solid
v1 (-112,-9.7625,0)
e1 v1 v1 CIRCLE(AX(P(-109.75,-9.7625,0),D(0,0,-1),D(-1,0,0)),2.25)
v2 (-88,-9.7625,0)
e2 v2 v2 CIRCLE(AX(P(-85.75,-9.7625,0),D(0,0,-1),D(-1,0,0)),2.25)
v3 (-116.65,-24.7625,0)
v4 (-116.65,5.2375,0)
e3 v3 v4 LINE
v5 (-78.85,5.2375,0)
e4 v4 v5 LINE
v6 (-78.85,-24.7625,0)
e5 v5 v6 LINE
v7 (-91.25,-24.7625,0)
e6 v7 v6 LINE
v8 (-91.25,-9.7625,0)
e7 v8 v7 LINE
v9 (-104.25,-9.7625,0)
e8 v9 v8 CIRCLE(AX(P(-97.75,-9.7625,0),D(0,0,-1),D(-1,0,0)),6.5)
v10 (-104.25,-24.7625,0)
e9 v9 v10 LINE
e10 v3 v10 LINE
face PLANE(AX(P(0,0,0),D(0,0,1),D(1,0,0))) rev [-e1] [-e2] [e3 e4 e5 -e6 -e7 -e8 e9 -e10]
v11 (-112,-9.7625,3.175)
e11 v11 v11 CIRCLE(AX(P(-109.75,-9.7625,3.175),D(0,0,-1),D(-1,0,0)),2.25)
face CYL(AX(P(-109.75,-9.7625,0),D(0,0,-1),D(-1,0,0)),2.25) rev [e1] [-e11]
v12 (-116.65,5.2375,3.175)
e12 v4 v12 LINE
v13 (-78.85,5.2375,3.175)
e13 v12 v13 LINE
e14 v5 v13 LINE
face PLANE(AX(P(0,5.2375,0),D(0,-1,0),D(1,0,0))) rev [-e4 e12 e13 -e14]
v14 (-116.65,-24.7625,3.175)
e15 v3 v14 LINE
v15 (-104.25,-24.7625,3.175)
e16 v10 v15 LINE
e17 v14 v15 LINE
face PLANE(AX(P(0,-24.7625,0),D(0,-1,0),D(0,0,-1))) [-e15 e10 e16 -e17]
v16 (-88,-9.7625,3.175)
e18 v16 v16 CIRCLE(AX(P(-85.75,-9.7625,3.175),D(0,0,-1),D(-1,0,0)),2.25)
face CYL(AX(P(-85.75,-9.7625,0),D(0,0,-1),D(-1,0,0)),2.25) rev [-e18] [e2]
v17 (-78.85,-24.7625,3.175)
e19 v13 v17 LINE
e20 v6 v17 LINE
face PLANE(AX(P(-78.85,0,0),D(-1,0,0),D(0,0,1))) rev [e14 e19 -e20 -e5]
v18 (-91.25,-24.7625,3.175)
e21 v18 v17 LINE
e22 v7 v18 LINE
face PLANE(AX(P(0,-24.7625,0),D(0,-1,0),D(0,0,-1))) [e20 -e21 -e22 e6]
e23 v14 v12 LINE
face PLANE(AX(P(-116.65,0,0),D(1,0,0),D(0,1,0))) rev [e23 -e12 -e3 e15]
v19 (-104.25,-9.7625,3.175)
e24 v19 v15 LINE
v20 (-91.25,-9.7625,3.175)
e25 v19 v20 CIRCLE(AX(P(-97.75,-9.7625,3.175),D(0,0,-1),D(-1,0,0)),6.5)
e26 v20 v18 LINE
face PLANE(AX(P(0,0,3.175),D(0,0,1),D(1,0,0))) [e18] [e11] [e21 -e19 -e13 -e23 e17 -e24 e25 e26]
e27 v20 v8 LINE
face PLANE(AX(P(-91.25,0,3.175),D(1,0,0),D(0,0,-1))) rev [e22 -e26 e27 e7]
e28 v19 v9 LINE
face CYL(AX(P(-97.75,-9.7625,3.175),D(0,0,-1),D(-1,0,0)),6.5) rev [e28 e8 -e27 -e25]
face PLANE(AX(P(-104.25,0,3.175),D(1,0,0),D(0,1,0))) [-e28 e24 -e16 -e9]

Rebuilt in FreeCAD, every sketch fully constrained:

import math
import FreeCAD as App
import Part
import Sketcher


def add_polygon(sketch, points):
    """Adds a closed chain of lines whose ends are joined by coincident constraints."""
    first, n = sketch.GeometryCount, len(points)
    for a, b in zip(points, points[1:] + points[:1]):
        sketch.addGeometry(Part.LineSegment(App.Vector(*a, 0), App.Vector(*b, 0)), False)
    for i in range(n):
        sketch.addConstraint(Sketcher.Constraint("Coincident", first + i, 2, first + (i + 1) % n, 1))

doc = App.newDocument("Part")
body = doc.addObject("PartDesign::Body", "Body")

sketch1 = body.newObject("Sketcher::SketchObject", "Sketch")
sketch1.AttachmentSupport = (doc.getObject("XY_Plane"), [""])
sketch1.MapMode = "FlatFace"
add_polygon(sketch1, [(-150, 38), (-150, -38), (150, -38), (150, 38)])
sketch1.addConstraint(Sketcher.Constraint("Vertical", 0))
sketch1.addConstraint(Sketcher.Constraint("Horizontal", 1))
sketch1.addConstraint(Sketcher.Constraint("Vertical", 2))
sketch1.addConstraint(Sketcher.Constraint("Horizontal", 3))
sketch1.addConstraint(Sketcher.Constraint("Symmetric", 0, 2, 2, 2, -1, 1))
sketch1.addConstraint(Sketcher.Constraint("DistanceX", 1, 1, 1, 2, 299.7))
sketch1.addConstraint(Sketcher.Constraint("DistanceY", 0, 2, 0, 1, 76.075))
pad1 = body.newObject("PartDesign::Pad", "Pad")
pad1.Profile = sketch1
pad1.Length = 3.175

sketch2 = body.newObject("Sketcher::SketchObject", "Sketch001")
sketch2.AttachmentSupport = (doc.getObject("XY_Plane"), [""])
sketch2.MapMode = "FlatFace"
sketch2.AttachmentOffset = App.Placement(App.Vector(0, 0, 3.175), App.Rotation())
sketch2.addGeometry(Part.LineSegment(App.Vector(123.7, 18.5, 0), App.Vector(121.7, 18.5, 0)), False)
sketch2.addGeometry(Part.ArcOfCircle(Part.Circle(App.Vector(121.7, 13.5, 0), App.Vector(0, 0, 1), 5), math.radians(90), math.radians(180)), False)
sketch2.addGeometry(Part.LineSegment(App.Vector(116.7, 13.5, 0), App.Vector(116.7, -38, 0)), False)
sketch2.addGeometry(Part.LineSegment(App.Vector(116.7, -38, 0), App.Vector(128.7, -38, 0)), False)
sketch2.addGeometry(Part.LineSegment(App.Vector(128.7, -38, 0), App.Vector(128.7, 13.5, 0)), False)
sketch2.addGeometry(Part.ArcOfCircle(Part.Circle(App.Vector(123.7, 13.5, 0), App.Vector(0, 0, 1), 5), math.radians(0), math.radians(90)), False)
sketch2.addConstraint(Sketcher.Constraint("Tangent", 0, 2, 1, 1))
sketch2.addConstraint(Sketcher.Constraint("Tangent", 1, 2, 2, 1))
sketch2.addConstraint(Sketcher.Constraint("Coincident", 2, 2, 3, 1))
sketch2.addConstraint(Sketcher.Constraint("Coincident", 3, 2, 4, 1))
sketch2.addConstraint(Sketcher.Constraint("Tangent", 4, 2, 5, 1))
sketch2.addConstraint(Sketcher.Constraint("Tangent", 5, 2, 0, 1))
sketch2.addConstraint(Sketcher.Constraint("Horizontal", 0))
sketch2.addConstraint(Sketcher.Constraint("Vertical", 2))
sketch2.addConstraint(Sketcher.Constraint("Horizontal", 3))
sketch2.addConstraint(Sketcher.Constraint("Vertical", 4))
sketch2.addConstraint(Sketcher.Constraint("Equal", 1, 5))
sketch2.addConstraint(Sketcher.Constraint("Radius", 1, 5.0))
sketch2.addConstraint(Sketcher.Constraint("DistanceX", 0, 2, 0, 1, 2.0))
sketch2.addConstraint(Sketcher.Constraint("DistanceY", 2, 2, 2, 1, 51.55))
sketch2.addConstraint(Sketcher.Constraint("DistanceX", -1, 1, 1, 3, 121.65))
sketch2.addConstraint(Sketcher.Constraint("DistanceY", -1, 1, 1, 3, 13.5125))
pocket1 = body.newObject("PartDesign::Pocket", "Pocket")
pocket1.Profile = sketch2
pocket1.Type = "ThroughAll"
doc.recompute()

mirrored = body.newObject("PartDesign::Mirrored", "Mirrored")
mirrored.Originals = [pocket1]
mirrored.MirrorPlane = (doc.getObject("YZ_Plane"), [""])
body.Tip = mirrored

sketch3 = body.newObject("Sketcher::SketchObject", "Sketch002")
sketch3.AttachmentSupport = (doc.getObject("XY_Plane"), [""])
sketch3.MapMode = "FlatFace"
sketch3.addGeometry(Part.ArcOfCircle(Part.Circle(App.Vector(98, -10, 0), App.Vector(0, 0, 1), 6), math.radians(0), math.radians(180)), False)
sketch3.addGeometry(Part.LineSegment(App.Vector(104, -10, 0), App.Vector(104, -38, 0)), False)
sketch3.addGeometry(Part.LineSegment(App.Vector(104, -38, 0), App.Vector(91, -38, 0)), False)
sketch3.addGeometry(Part.LineSegment(App.Vector(91, -38, 0), App.Vector(91, -10, 0)), False)
sketch3.addGeometry(Part.ArcOfCircle(Part.Circle(App.Vector(-98, -10, 0), App.Vector(0, 0, 1), 6), math.radians(0), math.radians(180)), False)
sketch3.addGeometry(Part.LineSegment(App.Vector(-91, -10, 0), App.Vector(-91, -38, 0)), False)
sketch3.addGeometry(Part.LineSegment(App.Vector(-91, -38, 0), App.Vector(-104, -38, 0)), False)
sketch3.addGeometry(Part.LineSegment(App.Vector(-104, -38, 0), App.Vector(-104, -10, 0)), False)
sketch3.addConstraint(Sketcher.Constraint("Tangent", 0, 1, 1, 1))
sketch3.addConstraint(Sketcher.Constraint("Coincident", 1, 2, 2, 1))
sketch3.addConstraint(Sketcher.Constraint("Coincident", 2, 2, 3, 1))
sketch3.addConstraint(Sketcher.Constraint("Tangent", 3, 2, 0, 2))
sketch3.addConstraint(Sketcher.Constraint("Tangent", 4, 1, 5, 1))
sketch3.addConstraint(Sketcher.Constraint("Coincident", 5, 2, 6, 1))
sketch3.addConstraint(Sketcher.Constraint("Coincident", 6, 2, 7, 1))
sketch3.addConstraint(Sketcher.Constraint("Tangent", 7, 2, 4, 2))
sketch3.addConstraint(Sketcher.Constraint("Vertical", 1))
sketch3.addConstraint(Sketcher.Constraint("Horizontal", 2))
sketch3.addConstraint(Sketcher.Constraint("Vertical", 3))
sketch3.addConstraint(Sketcher.Constraint("Vertical", 5))
sketch3.addConstraint(Sketcher.Constraint("Horizontal", 6))
sketch3.addConstraint(Sketcher.Constraint("Vertical", 7))
sketch3.addConstraint(Sketcher.Constraint("Equal", 0, 4))
sketch3.addConstraint(Sketcher.Constraint("Symmetric", 0, 3, 4, 3, -2))
sketch3.addConstraint(Sketcher.Constraint("Horizontal", 2, 2, 5, 2))
sketch3.addConstraint(Sketcher.Constraint("Radius", 0, 6.5))
sketch3.addConstraint(Sketcher.Constraint("DistanceX", 4, 3, 0, 1, 202.0))
sketch3.addConstraint(Sketcher.Constraint("DistanceY", 1, 2, 1, 1, 28.275))
sketch3.addConstraint(Sketcher.Constraint("DistanceY", 0, 3, -1, 1, 9.7625))
pocket2 = body.newObject("PartDesign::Pocket", "Pocket001")
pocket2.Profile = sketch3
pocket2.Type = "ThroughAll"
pocket2.Reversed = True

sketch4 = body.newObject("Sketcher::SketchObject", "Sketch003")
sketch4.AttachmentSupport = (doc.getObject("XY_Plane"), [""])
sketch4.MapMode = "FlatFace"
sketch4.addGeometry(Part.Circle(App.Vector(85.8, -9.8, 0), App.Vector(0, 0, 1), 2.2), False)
sketch4.addGeometry(Part.Circle(App.Vector(109.8, -9.8, 0), App.Vector(0, 0, 1), 2.2), False)
sketch4.addGeometry(Part.Circle(App.Vector(-109.8, -9.8, 0), App.Vector(0, 0, 1), 2.2), False)
sketch4.addGeometry(Part.Circle(App.Vector(-85.8, -9.8, 0), App.Vector(0, 0, 1), 2.2), False)
sketch4.addConstraint(Sketcher.Constraint("Equal", 0, 1))
sketch4.addConstraint(Sketcher.Constraint("Equal", 1, 2))
sketch4.addConstraint(Sketcher.Constraint("Equal", 2, 3))
sketch4.addConstraint(Sketcher.Constraint("Symmetric", 1, 3, 2, 3, -2))
sketch4.addConstraint(Sketcher.Constraint("Symmetric", 0, 3, 3, 3, -2))
sketch4.addConstraint(Sketcher.Constraint("Horizontal", 0, 3, 1, 3))
sketch4.addConstraint(Sketcher.Constraint("Diameter", 0, 4.5))
sketch4.addConstraint(Sketcher.Constraint("DistanceX", 0, 3, 1, 3, 24.0))
sketch4.addConstraint(Sketcher.Constraint("DistanceX", 2, 3, 0, 3, 195.5))
sketch4.addConstraint(Sketcher.Constraint("DistanceY", 0, 3, -1, 1, 9.7625))
doc.recompute()
hole = body.newObject("PartDesign::Hole", "Hole")
hole.Profile = sketch4
hole.ThreadType = "None"
hole.Diameter = 4.5
hole.DepthType = "ThroughAll"
hole.Reversed = True

sketch5 = body.newObject("Sketcher::SketchObject", "Sketch004")
sketch5.AttachmentSupport = (doc.getObject("XZ_Plane"), [""])
sketch5.MapMode = "FlatFace"
sketch5.AttachmentOffset = App.Placement(App.Vector(0, 0, 38.0375), App.Rotation())
add_polygon(sketch5, [(-72, 3.2), (-72, 0), (72, 0), (72, 3.2)])
sketch5.addConstraint(Sketcher.Constraint("Vertical", 0))
sketch5.addConstraint(Sketcher.Constraint("Horizontal", 1))
sketch5.addConstraint(Sketcher.Constraint("Vertical", 2))
sketch5.addConstraint(Sketcher.Constraint("Horizontal", 3))
sketch5.addConstraint(Sketcher.Constraint("Symmetric", 0, 2, 1, 2, -1, 1))
sketch5.addConstraint(Sketcher.Constraint("DistanceX", 1, 1, 1, 2, 144.0))
sketch5.addConstraint(Sketcher.Constraint("DistanceY", 0, 2, 0, 1, 3.175))
pad2 = body.newObject("PartDesign::Pad", "Pad001")
pad2.Profile = sketch5
pad2.Length = 6.35

sketch6 = body.newObject("Sketcher::SketchObject", "Sketch005")
sketch6.AttachmentSupport = (doc.getObject("XY_Plane"), [""])
sketch6.MapMode = "FlatFace"
sketch6.AttachmentOffset = App.Placement(App.Vector(0, 0, 3.175), App.Rotation())
sketch6.addGeometry(Part.LineSegment(App.Vector(-78.8, -24.8, 0), App.Vector(-91.2, -24.8, 0)), False)
sketch6.addGeometry(Part.LineSegment(App.Vector(-91.2, -24.8, 0), App.Vector(-91.2, -38, 0)), False)
sketch6.addGeometry(Part.LineSegment(App.Vector(-91.2, -38, 0), App.Vector(-72, -38, 0)), False)
sketch6.addGeometry(Part.LineSegment(App.Vector(-72, -38, 0), App.Vector(-72, -44.4, 0)), False)
sketch6.addGeometry(Part.LineSegment(App.Vector(-72, -44.4, 0), App.Vector(72, -44.4, 0)), False)
sketch6.addGeometry(Part.LineSegment(App.Vector(72, -44.4, 0), App.Vector(72, -38, 0)), False)
sketch6.addGeometry(Part.LineSegment(App.Vector(72, -38, 0), App.Vector(91.2, -38, 0)), False)
sketch6.addGeometry(Part.LineSegment(App.Vector(91.2, -38, 0), App.Vector(91.2, -9.8, 0)), False)
sketch6.addGeometry(Part.ArcOfCircle(Part.Circle(App.Vector(97.8, -9.8, 0), App.Vector(0, 0, 1), 6.5), math.radians(0), math.radians(180)), False)
sketch6.addGeometry(Part.LineSegment(App.Vector(104.2, -9.8, 0), App.Vector(104.2, -38, 0)), False)
sketch6.addGeometry(Part.LineSegment(App.Vector(104.2, -38, 0), App.Vector(116.7, -38, 0)), False)
sketch6.addGeometry(Part.LineSegment(App.Vector(116.7, -38, 0), App.Vector(116.7, 13.5, 0)), False)
sketch6.addGeometry(Part.ArcOfCircle(Part.Circle(App.Vector(121.7, 13.5, 0), App.Vector(0, 0, 1), 5), math.radians(90), math.radians(180)), False)
sketch6.addGeometry(Part.LineSegment(App.Vector(121.7, 18.5, 0), App.Vector(123.7, 18.5, 0)), False)
sketch6.addGeometry(Part.ArcOfCircle(Part.Circle(App.Vector(123.7, 13.5, 0), App.Vector(0, 0, 1), 5), math.radians(0), math.radians(90)), False)
sketch6.addGeometry(Part.LineSegment(App.Vector(128.7, 13.5, 0), App.Vector(128.7, -38, 0)), False)
sketch6.addGeometry(Part.LineSegment(App.Vector(128.7, -38, 0), App.Vector(149.8, -38, 0)), False)
sketch6.addGeometry(Part.LineSegment(App.Vector(149.8, -38, 0), App.Vector(149.8, 38, 0)), False)
sketch6.addGeometry(Part.LineSegment(App.Vector(149.8, 38, 0), App.Vector(-149.8, 38, 0)), False)
sketch6.addGeometry(Part.LineSegment(App.Vector(-149.8, 38, 0), App.Vector(-149.8, -38, 0)), False)
sketch6.addGeometry(Part.LineSegment(App.Vector(-149.8, -38, 0), App.Vector(-128.7, -38, 0)), False)
sketch6.addGeometry(Part.LineSegment(App.Vector(-128.7, -38, 0), App.Vector(-128.7, 13.5, 0)), False)
sketch6.addGeometry(Part.ArcOfCircle(Part.Circle(App.Vector(-123.7, 13.5, 0), App.Vector(0, 0, 1), 5), math.radians(90), math.radians(180)), False)
sketch6.addGeometry(Part.LineSegment(App.Vector(-123.7, 18.5, 0), App.Vector(-121.7, 18.5, 0)), False)
sketch6.addGeometry(Part.ArcOfCircle(Part.Circle(App.Vector(-121.7, 13.5, 0), App.Vector(0, 0, 1), 5), math.radians(0), math.radians(90)), False)
sketch6.addGeometry(Part.LineSegment(App.Vector(-116.7, 13.5, 0), App.Vector(-116.7, 5.2, 0)), False)
sketch6.addGeometry(Part.LineSegment(App.Vector(-116.7, 5.2, 0), App.Vector(-78.8, 5.2, 0)), False)
sketch6.addGeometry(Part.LineSegment(App.Vector(-78.8, 5.2, 0), App.Vector(-78.8, -24.8, 0)), False)
sketch6.addGeometry(Part.Circle(App.Vector(85.8, -9.8, 0), App.Vector(0, 0, 1), 2.2), False)
sketch6.addGeometry(Part.Circle(App.Vector(109.8, -9.8, 0), App.Vector(0, 0, 1), 2.2), False)
add_polygon(sketch6, [(-116.7, -24.8), (-116.7, -38), (-104.2, -38), (-104.2, -24.8)])
sketch6.addConstraint(Sketcher.Constraint("Coincident", 0, 2, 1, 1))
sketch6.addConstraint(Sketcher.Constraint("Coincident", 1, 2, 2, 1))
sketch6.addConstraint(Sketcher.Constraint("Coincident", 2, 2, 3, 1))
sketch6.addConstraint(Sketcher.Constraint("Coincident", 3, 2, 4, 1))
sketch6.addConstraint(Sketcher.Constraint("Coincident", 4, 2, 5, 1))
sketch6.addConstraint(Sketcher.Constraint("Coincident", 5, 2, 6, 1))
sketch6.addConstraint(Sketcher.Constraint("Coincident", 6, 2, 7, 1))
sketch6.addConstraint(Sketcher.Constraint("Tangent", 7, 2, 8, 2))
sketch6.addConstraint(Sketcher.Constraint("Tangent", 8, 1, 9, 1))
sketch6.addConstraint(Sketcher.Constraint("Coincident", 9, 2, 10, 1))
sketch6.addConstraint(Sketcher.Constraint("Coincident", 10, 2, 11, 1))
sketch6.addConstraint(Sketcher.Constraint("Tangent", 11, 2, 12, 2))
sketch6.addConstraint(Sketcher.Constraint("Tangent", 12, 1, 13, 1))
sketch6.addConstraint(Sketcher.Constraint("Tangent", 13, 2, 14, 2))
sketch6.addConstraint(Sketcher.Constraint("Tangent", 14, 1, 15, 1))
sketch6.addConstraint(Sketcher.Constraint("Coincident", 15, 2, 16, 1))
sketch6.addConstraint(Sketcher.Constraint("Coincident", 16, 2, 17, 1))
sketch6.addConstraint(Sketcher.Constraint("Coincident", 17, 2, 18, 1))
sketch6.addConstraint(Sketcher.Constraint("Coincident", 18, 2, 19, 1))
sketch6.addConstraint(Sketcher.Constraint("Coincident", 19, 2, 20, 1))
sketch6.addConstraint(Sketcher.Constraint("Coincident", 20, 2, 21, 1))
sketch6.addConstraint(Sketcher.Constraint("Tangent", 21, 2, 22, 2))
sketch6.addConstraint(Sketcher.Constraint("Tangent", 22, 1, 23, 1))
sketch6.addConstraint(Sketcher.Constraint("Tangent", 23, 2, 24, 2))
sketch6.addConstraint(Sketcher.Constraint("Tangent", 24, 1, 25, 1))
sketch6.addConstraint(Sketcher.Constraint("Coincident", 25, 2, 26, 1))
sketch6.addConstraint(Sketcher.Constraint("Coincident", 26, 2, 27, 1))
sketch6.addConstraint(Sketcher.Constraint("Coincident", 27, 2, 0, 1))
sketch6.addConstraint(Sketcher.Constraint("Horizontal", 0))
sketch6.addConstraint(Sketcher.Constraint("Vertical", 1))
sketch6.addConstraint(Sketcher.Constraint("Horizontal", 2))
sketch6.addConstraint(Sketcher.Constraint("Vertical", 3))
sketch6.addConstraint(Sketcher.Constraint("Horizontal", 4))
sketch6.addConstraint(Sketcher.Constraint("Vertical", 5))
sketch6.addConstraint(Sketcher.Constraint("Horizontal", 6))
sketch6.addConstraint(Sketcher.Constraint("Vertical", 7))
sketch6.addConstraint(Sketcher.Constraint("Vertical", 9))
sketch6.addConstraint(Sketcher.Constraint("Horizontal", 10))
sketch6.addConstraint(Sketcher.Constraint("Vertical", 11))
sketch6.addConstraint(Sketcher.Constraint("Horizontal", 13))
sketch6.addConstraint(Sketcher.Constraint("Vertical", 15))
sketch6.addConstraint(Sketcher.Constraint("Horizontal", 16))
sketch6.addConstraint(Sketcher.Constraint("Vertical", 17))
sketch6.addConstraint(Sketcher.Constraint("Horizontal", 18))
sketch6.addConstraint(Sketcher.Constraint("Vertical", 19))
sketch6.addConstraint(Sketcher.Constraint("Horizontal", 20))
sketch6.addConstraint(Sketcher.Constraint("Vertical", 21))
sketch6.addConstraint(Sketcher.Constraint("Horizontal", 23))
sketch6.addConstraint(Sketcher.Constraint("Vertical", 25))
sketch6.addConstraint(Sketcher.Constraint("Horizontal", 26))
sketch6.addConstraint(Sketcher.Constraint("Vertical", 27))
sketch6.addConstraint(Sketcher.Constraint("Vertical", 30))
sketch6.addConstraint(Sketcher.Constraint("Horizontal", 31))
sketch6.addConstraint(Sketcher.Constraint("Vertical", 32))
sketch6.addConstraint(Sketcher.Constraint("Horizontal", 33))
sketch6.addConstraint(Sketcher.Constraint("Equal", 12, 14))
sketch6.addConstraint(Sketcher.Constraint("Equal", 14, 22))
sketch6.addConstraint(Sketcher.Constraint("Equal", 22, 24))
sketch6.addConstraint(Sketcher.Constraint("Equal", 28, 29))
sketch6.addConstraint(Sketcher.Constraint("Symmetric", 16, 2, 18, 2, -1, 1))
sketch6.addConstraint(Sketcher.Constraint("Symmetric", 14, 3, 22, 3, -2))
sketch6.addConstraint(Sketcher.Constraint("Symmetric", 2, 2, 5, 2, -2))
sketch6.addConstraint(Sketcher.Constraint("Symmetric", 10, 2, 30, 2, -2))
sketch6.addConstraint(Sketcher.Constraint("Horizontal", 8, 3, 28, 3))
sketch6.addConstraint(Sketcher.Constraint("Horizontal", 28, 3, 29, 3))
sketch6.addConstraint(Sketcher.Constraint("Horizontal", 6, 2, 9, 2))
sketch6.addConstraint(Sketcher.Constraint("Horizontal", 10, 2, 15, 2))
sketch6.addConstraint(Sketcher.Constraint("Horizontal", 16, 2, 19, 2))
sketch6.addConstraint(Sketcher.Constraint("Horizontal", 27, 2, 32, 2))
sketch6.addConstraint(Sketcher.Constraint("Vertical", 25, 2, 30, 2))
sketch6.addConstraint(Sketcher.Constraint("Equal", 2, 6))
sketch6.addConstraint(Sketcher.Constraint("Equal", 0, 10))
sketch6.addConstraint(Sketcher.Constraint("Equal", 10, 31))
sketch6.addConstraint(Sketcher.Constraint("Radius", 12, 5.0))
sketch6.addConstraint(Sketcher.Constraint("Diameter", 28, 4.5))
sketch6.addConstraint(Sketcher.Constraint("Radius", 8, 6.5))
sketch6.addConstraint(Sketcher.Constraint("DistanceX", 4, 1, 4, 2, 144.0))
sketch6.addConstraint(Sketcher.Constraint("DistanceX", 13, 1, 13, 2, 2.0))
sketch6.addConstraint(Sketcher.Constraint("DistanceY", 27, 2, 27, 1, 30.0))
sketch6.addConstraint(Sketcher.Constraint("DistanceX", 0, 2, 0, 1, 12.4))
sketch6.addConstraint(Sketcher.Constraint("DistanceX", 16, 1, 16, 2, 21.2))
sketch6.addConstraint(Sketcher.Constraint("DistanceX", 18, 2, 18, 1, 299.7))
sketch6.addConstraint(Sketcher.Constraint("DistanceX", 28, 3, 8, 3, 12.0))
sketch6.addConstraint(Sketcher.Constraint("DistanceX", 8, 3, 29, 3, 12.0))
sketch6.addConstraint(Sketcher.Constraint("DistanceY", 0, 2, 28, 3, 15.0))
sketch6.addConstraint(Sketcher.Constraint("DistanceY", 3, 2, 3, 1, 6.35))
sketch6.addConstraint(Sketcher.Constraint("DistanceY", 11, 1, 11, 2, 51.55))
sketch6.addConstraint(Sketcher.Constraint("DistanceY", 0, 2, 18, 2, 62.8))
sketch6.addConstraint(Sketcher.Constraint("DistanceY", 1, 2, 1, 1, 13.275))
pocket3 = body.newObject("PartDesign::Pocket", "Pocket002")
pocket3.Profile = sketch6
pocket3.Length = 157.318116

doc.recompute()
